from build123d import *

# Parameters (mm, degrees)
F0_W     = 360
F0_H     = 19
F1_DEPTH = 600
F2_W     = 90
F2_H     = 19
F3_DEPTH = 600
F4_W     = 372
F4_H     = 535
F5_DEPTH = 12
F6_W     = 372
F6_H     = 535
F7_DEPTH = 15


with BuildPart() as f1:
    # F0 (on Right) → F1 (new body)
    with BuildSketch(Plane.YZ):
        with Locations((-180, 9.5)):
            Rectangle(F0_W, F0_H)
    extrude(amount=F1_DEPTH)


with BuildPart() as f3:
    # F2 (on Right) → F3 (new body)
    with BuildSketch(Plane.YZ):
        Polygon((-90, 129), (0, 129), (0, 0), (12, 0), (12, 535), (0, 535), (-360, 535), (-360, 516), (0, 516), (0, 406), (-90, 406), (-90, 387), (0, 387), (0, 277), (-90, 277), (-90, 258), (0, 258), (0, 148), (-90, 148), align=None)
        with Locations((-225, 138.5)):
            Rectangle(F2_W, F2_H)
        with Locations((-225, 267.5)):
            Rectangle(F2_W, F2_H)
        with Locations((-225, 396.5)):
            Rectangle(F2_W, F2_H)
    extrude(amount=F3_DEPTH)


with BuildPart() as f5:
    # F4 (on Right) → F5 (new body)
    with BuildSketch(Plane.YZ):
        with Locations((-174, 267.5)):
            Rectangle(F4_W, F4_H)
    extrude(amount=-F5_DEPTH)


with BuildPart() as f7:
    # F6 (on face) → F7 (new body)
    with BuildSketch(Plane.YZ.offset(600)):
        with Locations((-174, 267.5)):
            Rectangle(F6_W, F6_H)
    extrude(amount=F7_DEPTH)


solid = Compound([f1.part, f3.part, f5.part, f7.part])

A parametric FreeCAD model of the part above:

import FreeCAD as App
import Part
import Sketcher

V = App.Vector


def add_polygon(sketch, points):
    """Adds a closed chain of lines whose ends are joined by coincident constraints."""
    first, n = sketch.GeometryCount, len(points)
    for a, b in zip(points, points[1:] + points[:1]):
        sketch.addGeometry(Part.LineSegment(App.Vector(*a, 0), App.Vector(*b, 0)), False)
    for i in range(n):
        sketch.addConstraint(Sketcher.Constraint("Coincident", first + i, 2, first + (i + 1) % n, 1))

doc = App.newDocument("Part")
body = doc.addObject("PartDesign::Body", "Body")

# Sketch on YZ plane
sketch1 = body.newObject("Sketcher::SketchObject", "Sketch")
sketch1.AttachmentSupport = (doc.getObject("YZ_Plane"), [""])
sketch1.MapMode = "FlatFace"
add_polygon(sketch1, [(-360, 19), (-360, 0), (0, 0), (0, 19)])  # lines 0-3
sketch1.addConstraint([
    Sketcher.Constraint("Vertical", 0),
    Sketcher.Constraint("Horizontal", 1),
    Sketcher.Constraint("Vertical", 2),
    Sketcher.Constraint("Horizontal", 3),
    Sketcher.Constraint("Coincident", 1, 2, -1, 1),
    Sketcher.Constraint("DistanceX", 1, 1, 1, 2, 360.0),
    Sketcher.Constraint("DistanceY", 0, 2, 0, 1, 19.0),
])
pad1 = body.newObject("PartDesign::Pad", "Pad")
pad1.Profile = sketch1
pad1.Length = 600
body2 = doc.addObject("PartDesign::Body", "Body001")
body2.AllowCompound = True

# Sketch on YZ plane
sketch2 = body2.newObject("Sketcher::SketchObject", "Sketch001")
sketch2.AttachmentSupport = (doc.getObject("YZ_Plane001"), [""])
sketch2.MapMode = "FlatFace"
add_polygon(sketch2, [(-90, 129), (0, 129), (0, 0), (12, 0), (12, 535), (-360, 535), (-360, 516), (0, 516), (0, 406), (-90, 406), (-90, 387), (0, 387), (0, 277), (-90, 277), (-90, 258), (0, 258), (0, 148), (-90, 148)])  # lines 0-17
add_polygon(sketch2, [(-270, 148), (-270, 129), (-180, 129), (-180, 148)])  # lines 18-21
add_polygon(sketch2, [(-270, 277), (-270, 258), (-180, 258), (-180, 277)])  # lines 22-25
add_polygon(sketch2, [(-270, 406), (-270, 387), (-180, 387), (-180, 406)])  # lines 26-29
sketch2.addConstraint([
    Sketcher.Constraint("Horizontal", 0),
    Sketcher.Constraint("Vertical", 1),
    Sketcher.Constraint("Horizontal", 2),
    Sketcher.Constraint("Vertical", 3),
    Sketcher.Constraint("Horizontal", 4),
    Sketcher.Constraint("Vertical", 5),
    Sketcher.Constraint("Horizontal", 6),
    Sketcher.Constraint("Vertical", 7),
    Sketcher.Constraint("Horizontal", 8),
    Sketcher.Constraint("Vertical", 9),
    Sketcher.Constraint("Horizontal", 10),
    Sketcher.Constraint("Vertical", 11),
    Sketcher.Constraint("Horizontal", 12),
    Sketcher.Constraint("Vertical", 13),
    Sketcher.Constraint("Horizontal", 14),
    Sketcher.Constraint("Vertical", 15),
    Sketcher.Constraint("Horizontal", 16),
    Sketcher.Constraint("Vertical", 17),
    Sketcher.Constraint("Vertical", 18),
    Sketcher.Constraint("Horizontal", 19),
    Sketcher.Constraint("Vertical", 20),
    Sketcher.Constraint("Horizontal", 21),
    Sketcher.Constraint("Vertical", 22),
    Sketcher.Constraint("Horizontal", 23),
    Sketcher.Constraint("Vertical", 24),
    Sketcher.Constraint("Horizontal", 25),
    Sketcher.Constraint("Vertical", 26),
    Sketcher.Constraint("Horizontal", 27),
    Sketcher.Constraint("Vertical", 28),
    Sketcher.Constraint("Horizontal", 29),
    Sketcher.Constraint("Coincident", 1, 2, -1, 1),
    Sketcher.Constraint("PointOnObject", 6, 2, -2),
    Sketcher.Constraint("PointOnObject", 10, 2, -2),
    Sketcher.Constraint("PointOnObject", 14, 2, -2),
    Sketcher.Constraint("Horizontal", 17, 2, 18, 2),
    Sketcher.Constraint("Horizontal", 16, 2, 20, 2),
    Sketcher.Constraint("Horizontal", 14, 2, 22, 2),
    Sketcher.Constraint("Horizontal", 12, 2, 24, 2),
    Sketcher.Constraint("Horizontal", 10, 2, 26, 2),
    Sketcher.Constraint("Horizontal", 8, 2, 28, 2),
    Sketcher.Constraint("Vertical", 9, 2, 12, 2),
    Sketcher.Constraint("Vertical", 13, 2, 16, 2),
    Sketcher.Constraint("Vertical", 21, 2, 22, 2),
    Sketcher.Constraint("Vertical", 20, 2, 23, 2),
    Sketcher.Constraint("Vertical", 25, 2, 26, 2),
    Sketcher.Constraint("Vertical", 24, 2, 27, 2),
    Sketcher.Constraint("Equal", 16, 19),
    Sketcher.Constraint("Equal", 5, 9),
    Sketcher.Constraint("Equal", 7, 11),
    Sketcher.Constraint("Equal", 9, 13),
    Sketcher.Constraint("Equal", 11, 15),
    Sketcher.Constraint("Equal", 13, 17),
    Sketcher.Constraint("DistanceX", 0, 1, 0, 2, 90.0),
    Sketcher.Constraint("DistanceX", 2, 1, 2, 2, 12.0),
    Sketcher.Constraint("DistanceX", 4, 2, 4, 1, 372.0),
    Sketcher.Constraint("DistanceY", 1, 2, 1, 1, 129.0),
    Sketcher.Constraint("DistanceY", 3, 1, 3, 2, 535.0),
    Sketcher.Constraint("DistanceY", 5, 2, 5, 1, 19.0),
    Sketcher.Constraint("DistanceX", 18, 2, -1, 1, 270.0),
])
pad2 = body2.newObject("PartDesign::Pad", "Pad001")
pad2.Profile = sketch2
pad2.Length = 600
body3 = doc.addObject("PartDesign::Body", "Body002")

# Sketch on YZ plane
sketch3 = body3.newObject("Sketcher::SketchObject", "Sketch002")
sketch3.AttachmentSupport = (doc.getObject("YZ_Plane002"), [""])
sketch3.MapMode = "FlatFace"
add_polygon(sketch3, [(-360, 535), (-360, 0), (12, 0), (12, 535)])  # lines 0-3
sketch3.addConstraint([
    Sketcher.Constraint("Vertical", 0),
    Sketcher.Constraint("Horizontal", 1),
    Sketcher.Constraint("Vertical", 2),
    Sketcher.Constraint("Horizontal", 3),
    Sketcher.Constraint("PointOnObject", 0, 2, -1),
    Sketcher.Constraint("DistanceX", 1, 1, 1, 2, 372.0),
    Sketcher.Constraint("DistanceY", 0, 2, 0, 1, 535.0),
    Sketcher.Constraint("DistanceX", 0, 2, -1, 1, 360.0),
])
pad3 = body3.newObject("PartDesign::Pad", "Pad002")
pad3.Profile = sketch3
pad3.Length = 12
pad3.Reversed = True
body4 = doc.addObject("PartDesign::Body", "Body003")

# Sketch on YZ plane
sketch4 = body4.newObject("Sketcher::SketchObject", "Sketch003")
sketch4.AttachmentSupport = (doc.getObject("YZ_Plane003"), [""])
sketch4.MapMode = "FlatFace"
sketch4.AttachmentOffset = App.Placement(V(0, 0, 600), App.Rotation())
add_polygon(sketch4, [(-360, 535), (-360, 0), (12, 0), (12, 535)])  # lines 0-3
sketch4.addConstraint([
    Sketcher.Constraint("Vertical", 0),
    Sketcher.Constraint("Horizontal", 1),
    Sketcher.Constraint("Vertical", 2),
    Sketcher.Constraint("Horizontal", 3),
    Sketcher.Constraint("PointOnObject", 0, 2, -1),
    Sketcher.Constraint("DistanceX", 1, 1, 1, 2, 372.0),
    Sketcher.Constraint("DistanceY", 0, 2, 0, 1, 535.0),
    Sketcher.Constraint("DistanceX", 0, 2, -1, 1, 360.0),
])
pad4 = body4.newObject("PartDesign::Pad", "Pad003")
pad4.Profile = sketch4
pad4.Length = 15

doc.recompute()
